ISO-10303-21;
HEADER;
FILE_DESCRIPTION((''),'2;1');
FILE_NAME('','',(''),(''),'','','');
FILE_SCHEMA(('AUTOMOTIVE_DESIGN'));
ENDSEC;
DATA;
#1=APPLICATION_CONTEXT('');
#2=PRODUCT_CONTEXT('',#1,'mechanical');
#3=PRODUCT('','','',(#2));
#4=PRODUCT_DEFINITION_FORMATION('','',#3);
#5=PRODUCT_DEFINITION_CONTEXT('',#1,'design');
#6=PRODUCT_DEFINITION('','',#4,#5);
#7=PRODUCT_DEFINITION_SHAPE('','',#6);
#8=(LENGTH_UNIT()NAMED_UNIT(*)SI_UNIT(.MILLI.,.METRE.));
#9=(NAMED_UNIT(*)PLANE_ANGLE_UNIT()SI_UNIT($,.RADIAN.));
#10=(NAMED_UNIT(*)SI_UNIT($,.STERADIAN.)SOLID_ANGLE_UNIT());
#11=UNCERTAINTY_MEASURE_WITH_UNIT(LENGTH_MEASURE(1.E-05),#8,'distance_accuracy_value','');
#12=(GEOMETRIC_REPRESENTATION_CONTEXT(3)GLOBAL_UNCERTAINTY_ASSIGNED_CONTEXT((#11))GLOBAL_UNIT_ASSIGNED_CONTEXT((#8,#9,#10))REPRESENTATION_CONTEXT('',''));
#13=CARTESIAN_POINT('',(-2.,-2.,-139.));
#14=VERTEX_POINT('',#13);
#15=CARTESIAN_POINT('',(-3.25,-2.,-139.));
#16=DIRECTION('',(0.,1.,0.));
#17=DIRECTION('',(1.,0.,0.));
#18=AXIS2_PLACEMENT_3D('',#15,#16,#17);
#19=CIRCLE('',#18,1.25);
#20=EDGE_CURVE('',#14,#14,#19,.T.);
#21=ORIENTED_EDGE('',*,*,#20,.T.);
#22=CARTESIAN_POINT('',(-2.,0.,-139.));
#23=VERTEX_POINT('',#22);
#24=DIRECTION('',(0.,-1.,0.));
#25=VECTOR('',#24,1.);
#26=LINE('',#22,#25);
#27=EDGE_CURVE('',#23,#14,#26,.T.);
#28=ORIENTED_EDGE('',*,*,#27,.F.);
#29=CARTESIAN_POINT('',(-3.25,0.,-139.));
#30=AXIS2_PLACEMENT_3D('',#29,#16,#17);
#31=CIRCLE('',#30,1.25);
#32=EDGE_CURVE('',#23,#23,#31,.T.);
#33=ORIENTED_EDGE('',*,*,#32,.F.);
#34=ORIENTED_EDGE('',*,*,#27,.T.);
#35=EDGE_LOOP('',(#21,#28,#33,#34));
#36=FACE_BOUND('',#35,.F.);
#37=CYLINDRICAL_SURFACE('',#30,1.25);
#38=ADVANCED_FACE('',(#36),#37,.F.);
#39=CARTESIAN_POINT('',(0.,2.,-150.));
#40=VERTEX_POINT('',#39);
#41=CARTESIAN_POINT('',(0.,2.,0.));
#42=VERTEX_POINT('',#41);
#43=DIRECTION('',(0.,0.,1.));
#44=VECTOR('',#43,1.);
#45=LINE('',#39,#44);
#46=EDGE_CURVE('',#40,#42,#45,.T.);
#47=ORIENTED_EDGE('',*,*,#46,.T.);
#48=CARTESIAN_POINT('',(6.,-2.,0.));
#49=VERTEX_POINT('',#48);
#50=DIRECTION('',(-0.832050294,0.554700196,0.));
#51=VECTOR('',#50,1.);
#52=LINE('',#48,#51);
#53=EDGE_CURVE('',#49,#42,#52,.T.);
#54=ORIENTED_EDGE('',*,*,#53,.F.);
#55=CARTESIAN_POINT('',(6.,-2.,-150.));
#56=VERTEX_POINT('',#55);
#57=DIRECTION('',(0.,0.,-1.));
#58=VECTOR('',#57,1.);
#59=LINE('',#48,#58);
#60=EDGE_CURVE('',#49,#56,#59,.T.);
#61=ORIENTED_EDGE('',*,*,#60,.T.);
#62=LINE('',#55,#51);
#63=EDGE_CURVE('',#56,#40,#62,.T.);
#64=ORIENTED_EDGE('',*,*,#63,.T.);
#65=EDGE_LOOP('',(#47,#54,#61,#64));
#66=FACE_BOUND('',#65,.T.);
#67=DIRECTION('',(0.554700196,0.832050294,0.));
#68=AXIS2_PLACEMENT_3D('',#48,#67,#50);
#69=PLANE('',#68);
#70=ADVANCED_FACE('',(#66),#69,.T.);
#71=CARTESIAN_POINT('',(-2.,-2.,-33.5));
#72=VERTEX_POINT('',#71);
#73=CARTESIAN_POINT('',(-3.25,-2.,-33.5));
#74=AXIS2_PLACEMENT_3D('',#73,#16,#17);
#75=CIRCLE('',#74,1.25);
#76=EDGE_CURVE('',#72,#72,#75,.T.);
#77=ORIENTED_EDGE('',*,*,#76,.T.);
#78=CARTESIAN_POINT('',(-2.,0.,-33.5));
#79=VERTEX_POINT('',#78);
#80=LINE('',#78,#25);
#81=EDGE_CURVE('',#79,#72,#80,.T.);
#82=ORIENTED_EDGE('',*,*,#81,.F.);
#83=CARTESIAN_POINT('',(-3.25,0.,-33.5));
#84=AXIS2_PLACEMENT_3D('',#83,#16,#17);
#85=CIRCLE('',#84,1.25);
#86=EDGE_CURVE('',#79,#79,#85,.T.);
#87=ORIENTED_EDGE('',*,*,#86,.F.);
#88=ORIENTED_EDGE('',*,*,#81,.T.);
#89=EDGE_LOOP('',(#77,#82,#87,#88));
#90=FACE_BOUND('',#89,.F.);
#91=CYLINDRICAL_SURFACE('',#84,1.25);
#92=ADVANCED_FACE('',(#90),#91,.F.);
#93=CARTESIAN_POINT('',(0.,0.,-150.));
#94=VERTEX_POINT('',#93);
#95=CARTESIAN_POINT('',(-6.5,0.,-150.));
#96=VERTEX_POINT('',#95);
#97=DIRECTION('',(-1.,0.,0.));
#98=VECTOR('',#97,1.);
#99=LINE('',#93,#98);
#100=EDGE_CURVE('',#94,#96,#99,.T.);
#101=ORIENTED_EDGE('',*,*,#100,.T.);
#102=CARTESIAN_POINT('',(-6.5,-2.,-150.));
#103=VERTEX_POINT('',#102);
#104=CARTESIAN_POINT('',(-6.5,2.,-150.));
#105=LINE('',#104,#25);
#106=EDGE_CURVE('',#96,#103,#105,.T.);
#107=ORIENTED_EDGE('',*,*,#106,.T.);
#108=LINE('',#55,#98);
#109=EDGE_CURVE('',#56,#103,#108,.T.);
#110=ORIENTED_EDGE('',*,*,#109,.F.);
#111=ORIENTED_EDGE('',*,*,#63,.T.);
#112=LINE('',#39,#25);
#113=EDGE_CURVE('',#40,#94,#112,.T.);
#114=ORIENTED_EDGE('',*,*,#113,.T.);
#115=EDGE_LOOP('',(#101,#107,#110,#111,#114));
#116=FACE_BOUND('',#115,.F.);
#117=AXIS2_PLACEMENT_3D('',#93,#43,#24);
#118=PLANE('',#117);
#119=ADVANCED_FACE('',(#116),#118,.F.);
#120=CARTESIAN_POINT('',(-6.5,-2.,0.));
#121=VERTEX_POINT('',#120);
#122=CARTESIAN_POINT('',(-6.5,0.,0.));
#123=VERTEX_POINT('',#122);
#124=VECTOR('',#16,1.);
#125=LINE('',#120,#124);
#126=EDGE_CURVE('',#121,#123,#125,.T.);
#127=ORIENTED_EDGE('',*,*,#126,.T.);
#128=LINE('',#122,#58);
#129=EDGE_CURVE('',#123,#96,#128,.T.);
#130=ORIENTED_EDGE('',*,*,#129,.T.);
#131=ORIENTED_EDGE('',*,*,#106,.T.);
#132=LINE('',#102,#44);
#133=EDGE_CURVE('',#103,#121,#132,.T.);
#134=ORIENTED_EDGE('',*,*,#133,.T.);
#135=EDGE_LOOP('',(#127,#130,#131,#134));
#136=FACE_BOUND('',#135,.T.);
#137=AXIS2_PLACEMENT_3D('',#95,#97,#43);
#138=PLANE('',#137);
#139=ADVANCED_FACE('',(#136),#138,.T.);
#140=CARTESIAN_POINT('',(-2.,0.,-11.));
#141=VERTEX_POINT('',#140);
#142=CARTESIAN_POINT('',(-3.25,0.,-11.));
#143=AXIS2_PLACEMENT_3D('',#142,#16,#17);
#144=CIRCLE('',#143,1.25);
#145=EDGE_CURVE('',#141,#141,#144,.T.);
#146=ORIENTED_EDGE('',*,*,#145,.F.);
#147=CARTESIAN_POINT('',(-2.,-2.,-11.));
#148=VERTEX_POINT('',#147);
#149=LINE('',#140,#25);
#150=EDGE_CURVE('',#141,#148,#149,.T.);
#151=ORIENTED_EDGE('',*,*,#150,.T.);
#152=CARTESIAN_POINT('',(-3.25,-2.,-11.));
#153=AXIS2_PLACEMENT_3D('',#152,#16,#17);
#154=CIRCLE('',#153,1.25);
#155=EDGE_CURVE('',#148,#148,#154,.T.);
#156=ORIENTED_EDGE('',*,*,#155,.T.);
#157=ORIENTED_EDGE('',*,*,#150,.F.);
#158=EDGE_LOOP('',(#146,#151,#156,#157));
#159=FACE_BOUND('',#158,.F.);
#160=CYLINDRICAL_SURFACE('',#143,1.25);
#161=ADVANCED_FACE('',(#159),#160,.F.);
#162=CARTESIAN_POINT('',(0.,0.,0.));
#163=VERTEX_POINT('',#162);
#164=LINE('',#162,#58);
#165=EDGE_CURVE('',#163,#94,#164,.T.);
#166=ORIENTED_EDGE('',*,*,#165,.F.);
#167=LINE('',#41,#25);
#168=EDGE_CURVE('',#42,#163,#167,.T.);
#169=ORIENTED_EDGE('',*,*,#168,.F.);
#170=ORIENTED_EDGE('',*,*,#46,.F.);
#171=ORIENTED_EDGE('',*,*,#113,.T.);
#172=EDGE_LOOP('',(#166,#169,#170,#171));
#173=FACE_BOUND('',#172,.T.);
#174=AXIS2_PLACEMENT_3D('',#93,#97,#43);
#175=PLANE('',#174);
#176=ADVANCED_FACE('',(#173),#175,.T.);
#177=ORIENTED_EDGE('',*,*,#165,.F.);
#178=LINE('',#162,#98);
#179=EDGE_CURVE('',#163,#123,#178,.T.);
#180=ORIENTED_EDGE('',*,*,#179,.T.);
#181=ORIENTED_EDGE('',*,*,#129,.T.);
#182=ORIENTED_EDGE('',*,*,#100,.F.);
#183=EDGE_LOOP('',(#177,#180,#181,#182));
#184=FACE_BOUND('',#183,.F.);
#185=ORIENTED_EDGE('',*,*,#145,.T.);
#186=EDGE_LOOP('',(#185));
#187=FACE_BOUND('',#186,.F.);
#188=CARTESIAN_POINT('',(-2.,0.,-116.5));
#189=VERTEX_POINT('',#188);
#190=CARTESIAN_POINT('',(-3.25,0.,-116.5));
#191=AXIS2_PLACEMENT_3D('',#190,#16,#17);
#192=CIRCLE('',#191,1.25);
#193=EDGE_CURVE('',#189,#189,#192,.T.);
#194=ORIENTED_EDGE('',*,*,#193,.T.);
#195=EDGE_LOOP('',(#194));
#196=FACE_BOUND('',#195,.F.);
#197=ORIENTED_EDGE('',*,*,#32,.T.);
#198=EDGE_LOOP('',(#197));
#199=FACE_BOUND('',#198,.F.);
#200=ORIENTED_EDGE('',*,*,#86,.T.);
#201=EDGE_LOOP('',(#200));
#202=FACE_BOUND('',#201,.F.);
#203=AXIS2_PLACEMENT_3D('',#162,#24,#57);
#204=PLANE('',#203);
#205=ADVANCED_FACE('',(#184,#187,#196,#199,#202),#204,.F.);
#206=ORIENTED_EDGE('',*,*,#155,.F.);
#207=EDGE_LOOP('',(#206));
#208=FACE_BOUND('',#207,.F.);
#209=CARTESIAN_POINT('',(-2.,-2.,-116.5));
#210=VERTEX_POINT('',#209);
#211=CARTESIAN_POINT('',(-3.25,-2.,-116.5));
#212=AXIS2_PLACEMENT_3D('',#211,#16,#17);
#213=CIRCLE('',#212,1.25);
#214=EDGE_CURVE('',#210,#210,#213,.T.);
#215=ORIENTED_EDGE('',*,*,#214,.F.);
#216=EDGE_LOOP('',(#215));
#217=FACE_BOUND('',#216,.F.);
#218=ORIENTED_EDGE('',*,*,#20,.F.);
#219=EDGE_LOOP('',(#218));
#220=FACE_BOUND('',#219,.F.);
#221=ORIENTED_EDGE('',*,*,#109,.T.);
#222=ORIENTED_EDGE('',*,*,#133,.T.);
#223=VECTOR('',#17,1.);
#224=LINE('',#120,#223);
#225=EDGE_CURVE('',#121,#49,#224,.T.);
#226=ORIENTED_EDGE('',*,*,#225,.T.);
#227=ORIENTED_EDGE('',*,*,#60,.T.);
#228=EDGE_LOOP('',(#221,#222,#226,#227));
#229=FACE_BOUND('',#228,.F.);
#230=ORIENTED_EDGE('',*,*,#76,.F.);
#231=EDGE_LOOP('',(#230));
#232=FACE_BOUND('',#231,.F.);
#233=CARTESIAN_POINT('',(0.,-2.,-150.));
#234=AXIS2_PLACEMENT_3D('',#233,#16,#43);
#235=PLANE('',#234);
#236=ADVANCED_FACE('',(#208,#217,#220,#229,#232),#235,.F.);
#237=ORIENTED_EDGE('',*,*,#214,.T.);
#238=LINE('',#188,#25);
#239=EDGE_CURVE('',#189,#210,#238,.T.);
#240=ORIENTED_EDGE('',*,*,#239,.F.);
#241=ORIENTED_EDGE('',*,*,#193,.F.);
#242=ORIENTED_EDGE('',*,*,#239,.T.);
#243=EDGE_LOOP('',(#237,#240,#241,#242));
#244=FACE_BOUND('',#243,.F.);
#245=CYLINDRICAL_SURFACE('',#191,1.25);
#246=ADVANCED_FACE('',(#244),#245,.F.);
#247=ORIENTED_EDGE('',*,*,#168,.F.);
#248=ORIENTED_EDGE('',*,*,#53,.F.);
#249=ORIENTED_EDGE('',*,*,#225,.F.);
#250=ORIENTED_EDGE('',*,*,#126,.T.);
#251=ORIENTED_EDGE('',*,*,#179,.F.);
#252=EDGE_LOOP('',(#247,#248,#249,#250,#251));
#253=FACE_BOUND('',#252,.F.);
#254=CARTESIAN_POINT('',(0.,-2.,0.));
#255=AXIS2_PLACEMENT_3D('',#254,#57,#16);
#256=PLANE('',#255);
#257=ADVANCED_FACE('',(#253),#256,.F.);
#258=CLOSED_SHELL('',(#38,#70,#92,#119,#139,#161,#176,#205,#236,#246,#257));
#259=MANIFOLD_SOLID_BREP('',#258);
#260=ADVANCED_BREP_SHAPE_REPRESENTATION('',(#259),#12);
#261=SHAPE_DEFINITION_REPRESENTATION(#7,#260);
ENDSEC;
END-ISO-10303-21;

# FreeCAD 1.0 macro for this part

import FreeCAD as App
import Part
import Sketcher

V = App.Vector
Q = App.Units.Quantity


def add_polygon(sketch, points):
    """Adds a closed chain of lines whose ends are joined by coincident constraints."""
    first, n = sketch.GeometryCount, len(points)
    for a, b in zip(points, points[1:] + points[:1]):
        sketch.addGeometry(Part.LineSegment(App.Vector(*a, 0), App.Vector(*b, 0)), False)
    for i in range(n):
        sketch.addConstraint(Sketcher.Constraint("Coincident", first + i, 2, first + (i + 1) % n, 1))

doc = App.newDocument("Part")
body = doc.addObject("PartDesign::Body", "Body")

sketch1 = body.newObject("Sketcher::SketchObject", "Sketch")
sketch1.AttachmentSupport = (doc.getObject("XZ_Plane"), [""])
sketch1.MapMode = "FlatFace"
add_polygon(sketch1, [(-6, 0), (0, 0), (0, -150), (-6, -150)])
sketch1.addConstraint([
    Sketcher.Constraint("Horizontal", 0),
    Sketcher.Constraint("Vertical", 1),
    Sketcher.Constraint("Horizontal", 2),
    Sketcher.Constraint("Vertical", 3),
    Sketcher.Constraint("Coincident", 0, 2, -1, 1),
    Sketcher.Constraint("DistanceY", 1, 2, 1, 1, Q("150 mm")),
    Sketcher.Constraint("DistanceX", 0, 1, 0, 2, Q("6.5 mm")),
])
pad1 = body.newObject("PartDesign::Pad", "Pad")
pad1.Profile = sketch1
pad1.Length = 2
pad1.Reversed = True

sketch2 = body.newObject("Sketcher::SketchObject", "Sketch001")
sketch2.AttachmentSupport = (doc.getObject("XY_Plane"), [""])
sketch2.MapMode = "FlatFace"
add_polygon(sketch2, [(6, -2), (0, 2), (0, -2)])
sketch2.addConstraint([
    Sketcher.Constraint("Vertical", 1),
    Sketcher.Constraint("Horizontal", 2),
    Sketcher.Constraint("Symmetric", 0, 2, 1, 2, -1, 1),
    Sketcher.Constraint("DistanceX", 2, 1, 2, 2, Q("6 mm")),
    Sketcher.Constraint("DistanceY", 1, 2, 1, 1, Q("4 mm")),
])
pad2 = body.newObject("PartDesign::Pad", "Pad001")
pad2.Profile = sketch2
pad2.Length = 150
pad2.Reversed = True

sketch3 = body.newObject("Sketcher::SketchObject", "Sketch002")
sketch3.AttachmentSupport = (doc.getObject("YZ_Plane"), [""])
sketch3.MapMode = "FlatFace"
add_polygon(sketch3, [(2, 0), (2, -150), (0, -150), (0, 0)])
sketch3.addConstraint([
    Sketcher.Constraint("Vertical", 0),
    Sketcher.Constraint("Horizontal", 1),
    Sketcher.Constraint("Vertical", 2),
    Sketcher.Constraint("Horizontal", 3),
    Sketcher.Constraint("Coincident", 2, 2, -1, 1),
    Sketcher.Constraint("DistanceX", 1, 2, 1, 1, Q("2 mm")),
    Sketcher.Constraint("DistanceY", 0, 2, 0, 1, Q("150 mm")),
])
pocket1 = body.newObject("PartDesign::Pocket", "Pocket")
pocket1.Profile = sketch3
pocket1.Length = 10

sketch4 = body.newObject("Sketcher::SketchObject", "Sketch003")
sketch4.AttachmentSupport = (doc.getObject("YZ_Plane"), [""])
sketch4.MapMode = "FlatFace"
add_polygon(sketch4, [(0, 0), (0, -150), (-2, -150), (-2, 0)])
sketch4.addConstraint([
    Sketcher.Constraint("Vertical", 0),
    Sketcher.Constraint("Horizontal", 1),
    Sketcher.Constraint("Vertical", 2),
    Sketcher.Constraint("Horizontal", 3),
    Sketcher.Constraint("Coincident", 3, 2, -1, 1),
    Sketcher.Constraint("DistanceX", 1, 2, 1, 1, Q("2 mm")),
    Sketcher.Constraint("DistanceY", 0, 2, 0, 1, Q("150 mm")),
])
pad3 = body.newObject("PartDesign::Pad", "Pad002")
pad3.Profile = sketch4
pad3.Length = 6.5
pad3.Reversed = True

sketch5 = body.newObject("Sketcher::SketchObject", "Sketch004")
sketch5.AttachmentSupport = (doc.getObject("XZ_Plane"), [""])
sketch5.MapMode = "FlatFace"
sketch5.addGeometry([
    Part.Circle(V(-3.2, -11, 0), V(0, 0, 1), 1.2),
    Part.Circle(V(-3.2, -33.5, 0), V(0, 0, 1), 1.2),
    Part.Circle(V(-3.2, -116.5, 0), V(0, 0, 1), 1.2),
    Part.Circle(V(-3.2, -139, 0), V(0, 0, 1), 1.2),
], False)
sketch5.addConstraint([
    Sketcher.Constraint("Equal", 0, 1),
    Sketcher.Constraint("Equal", 1, 2),
    Sketcher.Constraint("Equal", 2, 3),
    Sketcher.Constraint("Vertical", 0, 3, 1, 3),
    Sketcher.Constraint("Vertical", 1, 3, 2, 3),
    Sketcher.Constraint("Vertical", 2, 3, 3, 3),
    Sketcher.Constraint("Diameter", 0, Q("2.5 mm")),
    Sketcher.Constraint("DistanceY", 0, 3, -1, 1, Q("11 mm")),
    Sketcher.Constraint("DistanceY", 1, 3, -1, 1, Q("33.5 mm")),
    Sketcher.Constraint("DistanceX", 0, 3, -1, 1, Q("3.25 mm")),
    Sketcher.Constraint("DistanceY", 3, 3, -1, 1, Q("139 mm")),
    Sketcher.Constraint("DistanceY", 2, 3, 1, 3, Q("83 mm")),
])
pocket2 = body.newObject("PartDesign::Pocket", "Pocket001")
pocket2.Profile = sketch5
pocket2.Length = 2
pocket2.Reversed = True

doc.recompute()
